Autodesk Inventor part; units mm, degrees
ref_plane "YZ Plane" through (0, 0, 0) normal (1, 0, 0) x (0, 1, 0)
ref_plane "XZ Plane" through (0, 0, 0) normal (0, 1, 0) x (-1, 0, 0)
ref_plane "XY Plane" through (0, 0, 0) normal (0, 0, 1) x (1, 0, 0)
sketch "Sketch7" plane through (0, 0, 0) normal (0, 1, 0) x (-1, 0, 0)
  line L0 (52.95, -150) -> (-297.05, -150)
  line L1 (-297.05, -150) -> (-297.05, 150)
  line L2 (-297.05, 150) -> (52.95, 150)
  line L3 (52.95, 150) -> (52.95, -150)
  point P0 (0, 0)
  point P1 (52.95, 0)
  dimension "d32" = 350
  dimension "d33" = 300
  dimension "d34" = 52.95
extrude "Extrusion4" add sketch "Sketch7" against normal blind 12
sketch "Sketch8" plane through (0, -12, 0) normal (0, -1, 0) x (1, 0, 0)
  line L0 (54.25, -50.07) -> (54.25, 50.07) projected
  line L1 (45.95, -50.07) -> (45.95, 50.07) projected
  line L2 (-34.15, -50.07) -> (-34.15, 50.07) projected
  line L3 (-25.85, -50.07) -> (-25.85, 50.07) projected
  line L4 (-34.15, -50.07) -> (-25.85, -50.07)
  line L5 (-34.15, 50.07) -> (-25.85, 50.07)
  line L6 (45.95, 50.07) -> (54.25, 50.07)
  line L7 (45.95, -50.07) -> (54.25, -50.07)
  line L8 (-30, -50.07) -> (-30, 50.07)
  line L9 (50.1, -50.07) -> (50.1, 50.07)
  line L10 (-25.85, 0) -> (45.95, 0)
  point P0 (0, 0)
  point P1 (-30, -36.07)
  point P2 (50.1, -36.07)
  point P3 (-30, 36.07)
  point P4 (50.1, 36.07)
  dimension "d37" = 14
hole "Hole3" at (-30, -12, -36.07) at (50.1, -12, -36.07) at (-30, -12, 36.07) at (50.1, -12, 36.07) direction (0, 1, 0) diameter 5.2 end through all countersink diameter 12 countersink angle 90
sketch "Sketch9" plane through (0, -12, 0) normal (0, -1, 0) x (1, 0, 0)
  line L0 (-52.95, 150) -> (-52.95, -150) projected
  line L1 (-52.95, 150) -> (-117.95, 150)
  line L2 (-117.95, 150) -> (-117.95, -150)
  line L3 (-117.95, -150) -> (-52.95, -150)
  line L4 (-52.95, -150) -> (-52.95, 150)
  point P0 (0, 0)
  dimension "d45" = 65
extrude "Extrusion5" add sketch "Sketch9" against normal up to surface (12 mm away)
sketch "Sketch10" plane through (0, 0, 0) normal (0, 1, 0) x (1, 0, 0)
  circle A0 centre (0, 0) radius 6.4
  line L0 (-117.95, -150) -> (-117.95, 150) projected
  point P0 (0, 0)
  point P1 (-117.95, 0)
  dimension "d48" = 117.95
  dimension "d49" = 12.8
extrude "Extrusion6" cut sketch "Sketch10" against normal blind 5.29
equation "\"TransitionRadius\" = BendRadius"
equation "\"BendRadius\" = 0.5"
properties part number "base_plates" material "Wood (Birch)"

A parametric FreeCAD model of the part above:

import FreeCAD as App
import Part
import Sketcher
Q = App.Units.Quantity


def add_polygon(sketch, points):
    """Adds a closed chain of lines whose ends are joined by coincident constraints."""
    first, n = sketch.GeometryCount, len(points)
    for a, b in zip(points, points[1:] + points[:1]):
        sketch.addGeometry(Part.LineSegment(App.Vector(*a, 0), App.Vector(*b, 0)), False)
    for i in range(n):
        sketch.addConstraint(Sketcher.Constraint("Coincident", first + i, 2, first + (i + 1) % n, 1))

doc = App.newDocument("Part")
params = doc.addObject("Spreadsheet::Sheet", "Params")
for row, (alias, value) in enumerate([
    ("sketch1_width", "350 mm"),
    ("sketch1_height", "300 mm"),
    ("pad1_length", "12 mm"),
    ("sketch2_diameter", "5.2 mm"),
    ("hole_diameter", "5.2 mm"),
    ("hole_csink_diameter", "12 mm"),
    ("sketch3_width", "65 mm"),
    ("sketch3_height", "300 mm"),
    ("pad2_length", "12 mm"),
    ("sketch4_diameter", "12.8 mm"),
    ("pocket1_length", "5.29 mm"),
], start=1):
    params.set(f"A{row}", alias)
    params.set(f"B{row}", "=" + value)
    params.setAlias(f"B{row}", alias)

body = doc.addObject("PartDesign::Body", "Body")

sketch1 = body.newObject("Sketcher::SketchObject", "Sketch")
sketch1.AttachmentSupport = (doc.getObject("XZ_Plane"), [""])
sketch1.MapMode = "FlatFace"
add_polygon(sketch1, [(297, -150), (-53, -150), (-53, 150), (297, 150)])
sketch1.addConstraint([
    Sketcher.Constraint("Horizontal", 0),
    Sketcher.Constraint("Vertical", 1),
    Sketcher.Constraint("Horizontal", 2),
    Sketcher.Constraint("Vertical", 3),
    Sketcher.Constraint("DistanceX", 0, 2, 0, 1, Q("350 mm")),
    Sketcher.Constraint("DistanceY", 1, 1, 1, 2, Q("300 mm")),
    Sketcher.Constraint("DistanceX", 0, 2, -1, 1, Q("52.95 mm")),
    Sketcher.Constraint("DistanceY", 0, 2, -1, 1, Q("150 mm")),
])
sketch1.setExpression("Constraints[8]", "Params.sketch1_width")
sketch1.setExpression("Constraints[9]", "Params.sketch1_height")
pad1 = body.newObject("PartDesign::Pad", "Pad")
pad1.Profile = sketch1
pad1.setExpression("Length", "Params.pad1_length")

sketch2 = body.newObject("Sketcher::SketchObject", "Sketch001")
sketch2.AttachmentSupport = (doc.getObject("XZ_Plane"), [""])
sketch2.MapMode = "FlatFace"
sketch2.AttachmentOffset = App.Placement(App.Vector(0, 0, 12), App.Rotation())
sketch2.addGeometry([
    Part.Circle(App.Vector(-30, -36.1, 0), App.Vector(0, 0, 1), 2.6),
    Part.Circle(App.Vector(50.1, -36.1, 0), App.Vector(0, 0, 1), 2.6),
    Part.Circle(App.Vector(-30, 36.1, 0), App.Vector(0, 0, 1), 2.6),
    Part.Circle(App.Vector(50.1, 36.1, 0), App.Vector(0, 0, 1), 2.6),
], False)
sketch2.addConstraint([
    Sketcher.Constraint("Equal", 0, 1),
    Sketcher.Constraint("Equal", 1, 2),
    Sketcher.Constraint("Equal", 2, 3),
    Sketcher.Constraint("Symmetric", 0, 3, 2, 3, -1),
    Sketcher.Constraint("Symmetric", 1, 3, 3, 3, -1),
    Sketcher.Constraint("Horizontal", 0, 3, 1, 3),
    Sketcher.Constraint("Diameter", 0, Q("5.2 mm")),
    Sketcher.Constraint("DistanceX", 0, 3, -1, 1, Q("30 mm")),
    Sketcher.Constraint("DistanceX", -1, 1, 1, 3, Q("50.1 mm")),
    Sketcher.Constraint("DistanceY", 0, 3, -1, 1, Q("36.07 mm")),
])
sketch2.setExpression("Constraints[6]", "Params.sketch2_diameter")
doc.recompute()
hole = body.newObject("PartDesign::Hole", "Hole")
hole.Profile = sketch2
hole.ThreadType = "None"
hole.setExpression("Diameter", "Params.hole_diameter")
hole.DepthType = "ThroughAll"
hole.HoleCutType = "Countersink"
hole.setExpression("HoleCutDiameter", "Params.hole_csink_diameter")
hole.HoleCutCountersinkAngle = 90

sketch3 = body.newObject("Sketcher::SketchObject", "Sketch002")
sketch3.AttachmentSupport = (doc.getObject("XZ_Plane"), [""])
sketch3.MapMode = "FlatFace"
sketch3.AttachmentOffset = App.Placement(App.Vector(0, 0, 12), App.Rotation())
add_polygon(sketch3, [(-53, -150), (-53, 150), (-118, 150), (-118, -150)])
sketch3.addConstraint([
    Sketcher.Constraint("Vertical", 0),
    Sketcher.Constraint("Horizontal", 1),
    Sketcher.Constraint("Vertical", 2),
    Sketcher.Constraint("Horizontal", 3),
    Sketcher.Constraint("DistanceX", 1, 2, 1, 1, Q("65 mm")),
    Sketcher.Constraint("DistanceY", 0, 1, 0, 2, Q("300 mm")),
    Sketcher.Constraint("DistanceY", -1, 1, 0, 2, Q("150 mm")),
    Sketcher.Constraint("DistanceX", 0, 2, -1, 1, Q("52.95 mm")),
])
sketch3.setExpression("Constraints[8]", "Params.sketch3_width")
sketch3.setExpression("Constraints[9]", "Params.sketch3_height")
pad2 = body.newObject("PartDesign::Pad", "Pad001")
pad2.Profile = sketch3
pad2.setExpression("Length", "Params.pad2_length")
pad2.Reversed = True

sketch4 = body.newObject("Sketcher::SketchObject", "Sketch003")
sketch4.AttachmentSupport = (doc.getObject("XZ_Plane"), [""])
sketch4.MapMode = "FlatFace"
sketch4.addGeometry(Part.Circle(App.Vector(0, 0, 0), App.Vector(0, 0, 1), 6), False)
sketch4.addConstraint([
    Sketcher.Constraint("Coincident", 0, 3, -1, 1),
    Sketcher.Constraint("Diameter", 0, Q("12.8 mm")),
])
sketch4.setExpression("Constraints[1]", "Params.sketch4_diameter")
pocket1 = body.newObject("PartDesign::Pocket", "Pocket")
pocket1.Profile = sketch4
pocket1.setExpression("Length", "Params.pocket1_length")
pocket1.Reversed = True

doc.recompute()
